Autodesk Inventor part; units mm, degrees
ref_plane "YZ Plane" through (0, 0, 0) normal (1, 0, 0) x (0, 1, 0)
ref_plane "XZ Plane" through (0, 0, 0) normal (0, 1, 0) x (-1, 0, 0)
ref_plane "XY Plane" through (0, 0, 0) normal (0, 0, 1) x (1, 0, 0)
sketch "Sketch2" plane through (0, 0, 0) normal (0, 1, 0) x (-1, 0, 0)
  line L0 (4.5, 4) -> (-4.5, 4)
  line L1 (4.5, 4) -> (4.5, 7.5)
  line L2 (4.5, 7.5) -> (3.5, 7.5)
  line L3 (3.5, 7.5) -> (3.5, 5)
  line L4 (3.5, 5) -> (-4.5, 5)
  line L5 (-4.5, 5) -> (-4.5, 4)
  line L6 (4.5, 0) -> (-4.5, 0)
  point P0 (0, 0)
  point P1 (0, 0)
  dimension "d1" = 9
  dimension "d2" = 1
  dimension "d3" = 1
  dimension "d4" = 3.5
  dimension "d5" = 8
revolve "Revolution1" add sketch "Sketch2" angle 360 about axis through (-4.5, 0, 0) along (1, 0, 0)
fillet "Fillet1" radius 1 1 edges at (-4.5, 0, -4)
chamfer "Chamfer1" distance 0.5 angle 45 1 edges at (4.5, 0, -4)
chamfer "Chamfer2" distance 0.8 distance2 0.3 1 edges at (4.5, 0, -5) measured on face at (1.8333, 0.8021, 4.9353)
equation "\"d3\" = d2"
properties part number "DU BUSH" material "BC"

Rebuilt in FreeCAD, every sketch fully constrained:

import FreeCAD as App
import Part
import Sketcher


def edges_at(feature, points):
    """Names of the edges that pass closest to the given points."""
    edges = feature.Shape.Edges
    near = lambda p: min(range(len(edges)), key=lambda i: edges[i].distToShape(Part.Vertex(*p))[0])
    return sorted({f"Edge{near(p) + 1}" for p in points})


def add_polygon(sketch, points):
    """Adds a closed chain of lines whose ends are joined by coincident constraints."""
    first, n = sketch.GeometryCount, len(points)
    for a, b in zip(points, points[1:] + points[:1]):
        sketch.addGeometry(Part.LineSegment(App.Vector(*a, 0), App.Vector(*b, 0)), False)
    for i in range(n):
        sketch.addConstraint(Sketcher.Constraint("Coincident", first + i, 2, first + (i + 1) % n, 1))

doc = App.newDocument("Part")
body = doc.addObject("PartDesign::Body", "Body")

# Sketch on XZ plane
sketch1 = doc.addObject("Sketcher::SketchObject", "Sketch")
body.addObject(sketch1)
sketch1.AttachmentSupport = (doc.XZ_Plane, [""])
sketch1.MapMode = "FlatFace"
add_polygon(sketch1, [(4.5, 4), (-4.5, 4), (-4.5, 7.5), (-3.5, 7.5), (-3.5, 5), (4.5, 5)])  # lines 0-5
sketch1.addConstraint([
    Sketcher.Constraint("Horizontal", 0),
    Sketcher.Constraint("Vertical", 1),
    Sketcher.Constraint("Horizontal", 2),
    Sketcher.Constraint("Vertical", 3),
    Sketcher.Constraint("Horizontal", 4),
    Sketcher.Constraint("Vertical", 5),
    Sketcher.Constraint("Equal", 2, 5),
    Sketcher.Constraint("DistanceX", 0, 2, 0, 1, 9.0),
    Sketcher.Constraint("DistanceX", 2, 1, 2, 2, 1.0),
    Sketcher.Constraint("DistanceY", 1, 1, 1, 2, 3.5),
    Sketcher.Constraint("DistanceX", 2, 2, -1, 1, 3.5),
    Sketcher.Constraint("DistanceY", -1, 1, 0, 2, 4.0),
])
revolution = doc.addObject("PartDesign::Revolution", "Revolution")
body.addObject(revolution)
revolution.Profile = sketch1
revolution.ReferenceAxis = (sketch1, ["H_Axis"])
revolution.Angle = 360
doc.recompute()

fillet = doc.addObject("PartDesign::Fillet", "Fillet")
body.addObject(fillet)
fillet.Base = (revolution, edges_at(revolution, [(-4.5, 0, -4)]))
fillet.Radius = 1
doc.recompute()

chamfer = doc.addObject("PartDesign::Chamfer", "Chamfer")
body.addObject(chamfer)
chamfer.Base = (fillet, edges_at(fillet, [(4.5, 0, -4)]))
chamfer.Size = 0.5
doc.recompute()

chamfer2 = doc.addObject("PartDesign::Chamfer", "Chamfer001")
body.addObject(chamfer2)
chamfer2.Base = (chamfer, edges_at(chamfer, [(4.5, 0, -5)]))
chamfer2.ChamferType = "Two distances"
chamfer2.Size = 0.8
chamfer2.Size2 = 0.3
chamfer2.FlipDirection = True

doc.recompute()
